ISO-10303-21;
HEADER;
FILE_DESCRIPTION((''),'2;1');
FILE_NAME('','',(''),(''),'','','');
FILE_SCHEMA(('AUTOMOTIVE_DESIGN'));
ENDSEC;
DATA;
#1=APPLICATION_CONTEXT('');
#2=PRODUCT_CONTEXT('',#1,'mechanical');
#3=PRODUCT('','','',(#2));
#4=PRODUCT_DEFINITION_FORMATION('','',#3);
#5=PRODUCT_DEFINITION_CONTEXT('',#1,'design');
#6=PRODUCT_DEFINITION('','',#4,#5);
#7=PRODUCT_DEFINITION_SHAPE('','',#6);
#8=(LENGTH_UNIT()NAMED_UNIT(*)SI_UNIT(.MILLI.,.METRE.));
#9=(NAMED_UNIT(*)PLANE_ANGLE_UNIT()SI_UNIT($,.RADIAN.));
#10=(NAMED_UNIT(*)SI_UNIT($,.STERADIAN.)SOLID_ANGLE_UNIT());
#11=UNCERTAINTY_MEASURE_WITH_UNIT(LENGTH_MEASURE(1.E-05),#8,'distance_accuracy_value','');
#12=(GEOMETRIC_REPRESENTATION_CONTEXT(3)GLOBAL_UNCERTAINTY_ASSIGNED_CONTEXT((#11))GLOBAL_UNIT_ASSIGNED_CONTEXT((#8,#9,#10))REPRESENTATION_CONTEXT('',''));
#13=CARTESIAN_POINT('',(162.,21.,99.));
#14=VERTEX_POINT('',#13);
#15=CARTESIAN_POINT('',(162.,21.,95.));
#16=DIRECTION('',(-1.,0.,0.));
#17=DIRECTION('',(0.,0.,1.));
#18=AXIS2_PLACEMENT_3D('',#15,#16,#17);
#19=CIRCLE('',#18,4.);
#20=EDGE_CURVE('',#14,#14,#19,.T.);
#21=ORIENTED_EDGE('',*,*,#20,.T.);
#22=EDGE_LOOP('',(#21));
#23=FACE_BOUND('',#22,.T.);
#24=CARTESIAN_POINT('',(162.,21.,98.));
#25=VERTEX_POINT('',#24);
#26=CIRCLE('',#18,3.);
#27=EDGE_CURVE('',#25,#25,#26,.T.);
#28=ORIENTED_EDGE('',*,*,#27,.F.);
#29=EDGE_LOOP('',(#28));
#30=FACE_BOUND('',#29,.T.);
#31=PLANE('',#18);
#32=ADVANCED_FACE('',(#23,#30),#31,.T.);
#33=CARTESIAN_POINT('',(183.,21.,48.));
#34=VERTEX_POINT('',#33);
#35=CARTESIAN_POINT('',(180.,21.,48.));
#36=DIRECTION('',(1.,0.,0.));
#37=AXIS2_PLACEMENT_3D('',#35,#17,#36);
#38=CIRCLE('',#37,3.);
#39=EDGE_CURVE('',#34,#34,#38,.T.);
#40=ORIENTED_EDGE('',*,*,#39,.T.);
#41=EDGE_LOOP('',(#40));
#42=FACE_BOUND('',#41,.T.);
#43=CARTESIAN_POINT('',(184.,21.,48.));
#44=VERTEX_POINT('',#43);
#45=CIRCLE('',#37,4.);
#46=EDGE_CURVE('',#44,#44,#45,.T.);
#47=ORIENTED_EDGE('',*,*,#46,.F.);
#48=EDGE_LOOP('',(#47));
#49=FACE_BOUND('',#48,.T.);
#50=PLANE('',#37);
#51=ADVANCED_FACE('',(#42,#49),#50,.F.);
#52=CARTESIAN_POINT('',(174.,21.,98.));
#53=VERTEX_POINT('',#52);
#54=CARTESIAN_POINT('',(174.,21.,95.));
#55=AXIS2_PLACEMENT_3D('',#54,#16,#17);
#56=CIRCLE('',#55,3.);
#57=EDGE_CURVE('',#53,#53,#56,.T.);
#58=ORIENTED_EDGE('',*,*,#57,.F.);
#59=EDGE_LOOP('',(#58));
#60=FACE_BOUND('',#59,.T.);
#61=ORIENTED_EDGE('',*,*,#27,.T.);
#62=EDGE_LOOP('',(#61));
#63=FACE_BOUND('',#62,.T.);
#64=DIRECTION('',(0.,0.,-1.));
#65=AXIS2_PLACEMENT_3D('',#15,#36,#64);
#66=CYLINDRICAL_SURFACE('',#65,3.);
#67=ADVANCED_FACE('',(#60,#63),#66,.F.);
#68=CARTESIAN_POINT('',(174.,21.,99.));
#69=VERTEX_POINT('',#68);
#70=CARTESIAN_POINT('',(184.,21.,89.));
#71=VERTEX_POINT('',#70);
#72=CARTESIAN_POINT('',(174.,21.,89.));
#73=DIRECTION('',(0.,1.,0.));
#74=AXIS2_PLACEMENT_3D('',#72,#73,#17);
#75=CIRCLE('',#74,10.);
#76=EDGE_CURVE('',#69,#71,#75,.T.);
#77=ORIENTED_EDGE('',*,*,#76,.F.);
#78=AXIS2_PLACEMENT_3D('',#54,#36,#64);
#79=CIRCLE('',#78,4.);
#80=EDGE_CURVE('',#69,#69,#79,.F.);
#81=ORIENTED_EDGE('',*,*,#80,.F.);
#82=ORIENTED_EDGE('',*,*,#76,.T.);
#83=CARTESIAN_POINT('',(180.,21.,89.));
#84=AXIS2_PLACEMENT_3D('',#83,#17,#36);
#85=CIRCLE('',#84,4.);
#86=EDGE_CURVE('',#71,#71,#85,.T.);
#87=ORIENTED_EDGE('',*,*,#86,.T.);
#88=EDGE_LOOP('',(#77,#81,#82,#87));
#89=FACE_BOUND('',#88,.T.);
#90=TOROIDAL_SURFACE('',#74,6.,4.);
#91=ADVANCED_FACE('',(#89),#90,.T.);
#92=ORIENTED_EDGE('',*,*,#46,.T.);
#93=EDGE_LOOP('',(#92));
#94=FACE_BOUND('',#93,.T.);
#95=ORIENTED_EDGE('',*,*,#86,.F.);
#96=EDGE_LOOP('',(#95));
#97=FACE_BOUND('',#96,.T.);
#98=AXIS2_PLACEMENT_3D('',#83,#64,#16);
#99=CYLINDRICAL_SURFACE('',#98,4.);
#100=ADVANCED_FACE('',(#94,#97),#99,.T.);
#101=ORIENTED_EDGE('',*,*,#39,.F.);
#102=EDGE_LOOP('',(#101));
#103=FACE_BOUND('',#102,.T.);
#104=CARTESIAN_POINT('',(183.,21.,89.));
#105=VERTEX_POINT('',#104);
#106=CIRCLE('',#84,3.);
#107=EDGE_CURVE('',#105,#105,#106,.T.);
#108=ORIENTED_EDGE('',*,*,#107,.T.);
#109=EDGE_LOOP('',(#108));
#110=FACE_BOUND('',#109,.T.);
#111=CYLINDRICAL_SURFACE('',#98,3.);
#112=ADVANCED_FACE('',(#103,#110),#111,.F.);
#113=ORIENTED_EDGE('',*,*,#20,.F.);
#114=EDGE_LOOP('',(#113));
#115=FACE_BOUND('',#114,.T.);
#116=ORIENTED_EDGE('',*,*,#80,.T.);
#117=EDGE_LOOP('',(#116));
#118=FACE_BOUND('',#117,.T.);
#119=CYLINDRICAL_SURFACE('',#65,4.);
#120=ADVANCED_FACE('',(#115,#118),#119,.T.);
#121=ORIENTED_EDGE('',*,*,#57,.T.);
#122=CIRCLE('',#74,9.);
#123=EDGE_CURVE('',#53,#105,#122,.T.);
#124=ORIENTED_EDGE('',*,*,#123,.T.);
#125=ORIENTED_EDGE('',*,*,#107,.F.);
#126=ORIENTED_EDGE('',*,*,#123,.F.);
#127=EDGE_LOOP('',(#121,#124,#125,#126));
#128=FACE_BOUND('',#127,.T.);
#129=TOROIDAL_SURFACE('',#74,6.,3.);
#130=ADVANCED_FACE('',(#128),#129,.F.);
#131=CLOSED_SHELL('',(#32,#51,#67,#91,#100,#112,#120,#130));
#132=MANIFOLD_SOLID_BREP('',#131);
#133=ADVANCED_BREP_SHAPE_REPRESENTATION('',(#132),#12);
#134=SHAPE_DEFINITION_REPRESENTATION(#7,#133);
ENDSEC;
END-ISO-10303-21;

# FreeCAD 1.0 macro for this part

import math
import FreeCAD as App
import Part
import Sketcher

V = App.Vector
Q = App.Units.Quantity

doc = App.newDocument("Part")
params = doc.addObject("Spreadsheet::Sheet", "Params")
for row, (alias, value) in enumerate([
    ("sketch1_diameter", "8 mm"),
    ("sketch1_diameter2", "6 mm"),
    ("sketch2_radius", "6 mm"),
    ("sketch2_width", "12 mm"),
    ("sketch2_height", "41 mm"),
], start=1):
    params.set(f"A{row}", alias)
    params.set(f"B{row}", "=" + value)
    params.setAlias(f"B{row}", alias)

body = doc.addObject("PartDesign::Body", "Body")

sketch1 = body.newObject("Sketcher::SketchObject", "Sketch")
sketch1.AttachmentSupport = (doc.getObject("YZ_Plane"), [""])
sketch1.MapMode = "FlatFace"
sketch1.AttachmentOffset = App.Placement(V(0, 0, 162), App.Rotation())
sketch1.addGeometry(Part.Circle(V(21, 95, 0), V(0, 0, 1), 4), False)
sketch1.addGeometry(Part.Circle(V(21, 95, 0), V(0, 0, 1), 3), False)
sketch1.addConstraint(Sketcher.Constraint("Coincident", 1, 3, 0, 3))
sketch1.addConstraint(Sketcher.Constraint("Diameter", 0, Q("8 mm")))
sketch1.addConstraint(Sketcher.Constraint("Diameter", 1, Q("6 mm")))
sketch1.addConstraint(Sketcher.Constraint("DistanceX", -1, 1, 0, 3, Q("21 mm")))
sketch1.addConstraint(Sketcher.Constraint("DistanceY", -1, 1, 0, 3, Q("95 mm")))
sketch1.setExpression("Constraints[1]", "Params.sketch1_diameter")
sketch1.setExpression("Constraints[2]", "Params.sketch1_diameter2")

sketch2 = body.newObject("Sketcher::SketchObject", "Sketch001")
sketch2.AttachmentSupport = (doc.getObject("XZ_Plane"), [""])
sketch2.MapMode = "FlatFace"
sketch2.AttachmentOffset = App.Placement(V(0, 0, -21), App.Rotation())
sketch2.addGeometry(Part.LineSegment(V(162, 95, 0), V(174, 95, 0)), False)
sketch2.addGeometry(Part.ArcOfCircle(Part.Circle(V(174, 89, 0), V(0, 0, 1), 6), math.radians(0), math.radians(90)), False)
sketch2.addGeometry(Part.LineSegment(V(180, 89, 0), V(180, 48, 0)), False)
sketch2.addConstraint(Sketcher.Constraint("Tangent", 0, 2, 1, 2))
sketch2.addConstraint(Sketcher.Constraint("Tangent", 1, 1, 2, 1))
sketch2.addConstraint(Sketcher.Constraint("Horizontal", 0))
sketch2.addConstraint(Sketcher.Constraint("Vertical", 2))
sketch2.addConstraint(Sketcher.Constraint("Radius", 1, Q("6 mm")))
sketch2.addConstraint(Sketcher.Constraint("DistanceX", 0, 1, 0, 2, Q("12 mm")))
sketch2.addConstraint(Sketcher.Constraint("DistanceY", 2, 2, 2, 1, Q("41 mm")))
sketch2.addConstraint(Sketcher.Constraint("DistanceX", -1, 1, 1, 3, Q("174 mm")))
sketch2.addConstraint(Sketcher.Constraint("DistanceY", -1, 1, 1, 3, Q("89 mm")))
sketch2.setExpression("Constraints[4]", "Params.sketch2_radius")
sketch2.setExpression("Constraints[5]", "Params.sketch2_width")
sketch2.setExpression("Constraints[6]", "Params.sketch2_height")
doc.recompute()

additivepipe = body.newObject("PartDesign::AdditivePipe", "AdditivePipe")
additivepipe.Profile = sketch1
additivepipe.Spine = (sketch2, ["Edge1", "Edge2", "Edge3"])

doc.recompute()
